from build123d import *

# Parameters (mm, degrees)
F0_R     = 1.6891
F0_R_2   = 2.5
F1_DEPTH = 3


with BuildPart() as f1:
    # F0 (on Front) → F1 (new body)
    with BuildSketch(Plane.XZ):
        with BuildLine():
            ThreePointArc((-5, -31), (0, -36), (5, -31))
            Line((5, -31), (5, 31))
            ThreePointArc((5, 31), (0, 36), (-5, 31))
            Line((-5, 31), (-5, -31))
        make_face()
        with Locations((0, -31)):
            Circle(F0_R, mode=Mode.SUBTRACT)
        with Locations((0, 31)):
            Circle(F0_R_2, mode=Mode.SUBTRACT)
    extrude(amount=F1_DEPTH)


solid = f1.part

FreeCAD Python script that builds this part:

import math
import FreeCAD as App
import Part
import Sketcher

V = App.Vector

doc = App.newDocument("Part")
params = doc.addObject("Spreadsheet::Sheet", "Params")
for row, (alias, value) in enumerate([
    ("sketch1_diameter", "5 mm"),
    ("sketch1_radius", "5 mm"),
    ("sketch1_height", "62 mm"),
    ("pad1_length", "3 mm"),
], start=1):
    params.set(f"A{row}", alias)
    params.set(f"B{row}", "=" + value)
    params.setAlias(f"B{row}", alias)

body = doc.addObject("PartDesign::Body", "Body")

# Sketch on XZ plane
sketch1 = body.newObject("Sketcher::SketchObject", "Sketch")
sketch1.AttachmentSupport = (doc.getObject("XZ_Plane"), [""])
sketch1.MapMode = "FlatFace"
sketch1.addGeometry([
    Part.ArcOfCircle(Part.Circle(V(0, -31, 0), V(0, 0, 1), 5), math.radians(180), math.radians(360)),  # 0
    Part.LineSegment(V(5, -31, 0), V(5, 31, 0)),  # 1
    Part.ArcOfCircle(Part.Circle(V(0, 31, 0), V(0, 0, 1), 5), math.radians(0), math.radians(180)),  # 2
    Part.LineSegment(V(-5, 31, 0), V(-5, -31, 0)),  # 3
    Part.Circle(V(0, -31, 0), V(0, 0, 1), 1.6891),  # 4
    Part.Circle(V(0, 31, 0), V(0, 0, 1), 2.5),  # 5
], False)
sketch1.addConstraint([
    Sketcher.Constraint("Tangent", 0, 2, 1, 1),
    Sketcher.Constraint("Tangent", 1, 2, 2, 1),
    Sketcher.Constraint("Tangent", 2, 2, 3, 1),
    Sketcher.Constraint("Tangent", 3, 2, 0, 1),
    Sketcher.Constraint("Vertical", 1),
    Sketcher.Constraint("Vertical", 3),
    Sketcher.Constraint("Coincident", 4, 3, 0, 3),
    Sketcher.Constraint("Coincident", 5, 3, 2, 3),
    Sketcher.Constraint("Symmetric", 0, 3, 2, 3, -1, 1),
    Sketcher.Constraint("Diameter", 5, 5.0),
    Sketcher.Constraint("Radius", 0, 5.0),
    Sketcher.Constraint("DistanceY", 1, 1, 1, 2, 62.0),
    Sketcher.Constraint("Diameter", 4, 3.3782),
])
sketch1.setExpression("Constraints[9]", "Params.sketch1_diameter")
sketch1.setExpression("Constraints[10]", "Params.sketch1_radius")
sketch1.setExpression("Constraints[11]", "Params.sketch1_height")
pad1 = body.newObject("PartDesign::Pad", "Pad")
pad1.Profile = sketch1
pad1.setExpression("Length", "Params.pad1_length")

doc.recompute()
